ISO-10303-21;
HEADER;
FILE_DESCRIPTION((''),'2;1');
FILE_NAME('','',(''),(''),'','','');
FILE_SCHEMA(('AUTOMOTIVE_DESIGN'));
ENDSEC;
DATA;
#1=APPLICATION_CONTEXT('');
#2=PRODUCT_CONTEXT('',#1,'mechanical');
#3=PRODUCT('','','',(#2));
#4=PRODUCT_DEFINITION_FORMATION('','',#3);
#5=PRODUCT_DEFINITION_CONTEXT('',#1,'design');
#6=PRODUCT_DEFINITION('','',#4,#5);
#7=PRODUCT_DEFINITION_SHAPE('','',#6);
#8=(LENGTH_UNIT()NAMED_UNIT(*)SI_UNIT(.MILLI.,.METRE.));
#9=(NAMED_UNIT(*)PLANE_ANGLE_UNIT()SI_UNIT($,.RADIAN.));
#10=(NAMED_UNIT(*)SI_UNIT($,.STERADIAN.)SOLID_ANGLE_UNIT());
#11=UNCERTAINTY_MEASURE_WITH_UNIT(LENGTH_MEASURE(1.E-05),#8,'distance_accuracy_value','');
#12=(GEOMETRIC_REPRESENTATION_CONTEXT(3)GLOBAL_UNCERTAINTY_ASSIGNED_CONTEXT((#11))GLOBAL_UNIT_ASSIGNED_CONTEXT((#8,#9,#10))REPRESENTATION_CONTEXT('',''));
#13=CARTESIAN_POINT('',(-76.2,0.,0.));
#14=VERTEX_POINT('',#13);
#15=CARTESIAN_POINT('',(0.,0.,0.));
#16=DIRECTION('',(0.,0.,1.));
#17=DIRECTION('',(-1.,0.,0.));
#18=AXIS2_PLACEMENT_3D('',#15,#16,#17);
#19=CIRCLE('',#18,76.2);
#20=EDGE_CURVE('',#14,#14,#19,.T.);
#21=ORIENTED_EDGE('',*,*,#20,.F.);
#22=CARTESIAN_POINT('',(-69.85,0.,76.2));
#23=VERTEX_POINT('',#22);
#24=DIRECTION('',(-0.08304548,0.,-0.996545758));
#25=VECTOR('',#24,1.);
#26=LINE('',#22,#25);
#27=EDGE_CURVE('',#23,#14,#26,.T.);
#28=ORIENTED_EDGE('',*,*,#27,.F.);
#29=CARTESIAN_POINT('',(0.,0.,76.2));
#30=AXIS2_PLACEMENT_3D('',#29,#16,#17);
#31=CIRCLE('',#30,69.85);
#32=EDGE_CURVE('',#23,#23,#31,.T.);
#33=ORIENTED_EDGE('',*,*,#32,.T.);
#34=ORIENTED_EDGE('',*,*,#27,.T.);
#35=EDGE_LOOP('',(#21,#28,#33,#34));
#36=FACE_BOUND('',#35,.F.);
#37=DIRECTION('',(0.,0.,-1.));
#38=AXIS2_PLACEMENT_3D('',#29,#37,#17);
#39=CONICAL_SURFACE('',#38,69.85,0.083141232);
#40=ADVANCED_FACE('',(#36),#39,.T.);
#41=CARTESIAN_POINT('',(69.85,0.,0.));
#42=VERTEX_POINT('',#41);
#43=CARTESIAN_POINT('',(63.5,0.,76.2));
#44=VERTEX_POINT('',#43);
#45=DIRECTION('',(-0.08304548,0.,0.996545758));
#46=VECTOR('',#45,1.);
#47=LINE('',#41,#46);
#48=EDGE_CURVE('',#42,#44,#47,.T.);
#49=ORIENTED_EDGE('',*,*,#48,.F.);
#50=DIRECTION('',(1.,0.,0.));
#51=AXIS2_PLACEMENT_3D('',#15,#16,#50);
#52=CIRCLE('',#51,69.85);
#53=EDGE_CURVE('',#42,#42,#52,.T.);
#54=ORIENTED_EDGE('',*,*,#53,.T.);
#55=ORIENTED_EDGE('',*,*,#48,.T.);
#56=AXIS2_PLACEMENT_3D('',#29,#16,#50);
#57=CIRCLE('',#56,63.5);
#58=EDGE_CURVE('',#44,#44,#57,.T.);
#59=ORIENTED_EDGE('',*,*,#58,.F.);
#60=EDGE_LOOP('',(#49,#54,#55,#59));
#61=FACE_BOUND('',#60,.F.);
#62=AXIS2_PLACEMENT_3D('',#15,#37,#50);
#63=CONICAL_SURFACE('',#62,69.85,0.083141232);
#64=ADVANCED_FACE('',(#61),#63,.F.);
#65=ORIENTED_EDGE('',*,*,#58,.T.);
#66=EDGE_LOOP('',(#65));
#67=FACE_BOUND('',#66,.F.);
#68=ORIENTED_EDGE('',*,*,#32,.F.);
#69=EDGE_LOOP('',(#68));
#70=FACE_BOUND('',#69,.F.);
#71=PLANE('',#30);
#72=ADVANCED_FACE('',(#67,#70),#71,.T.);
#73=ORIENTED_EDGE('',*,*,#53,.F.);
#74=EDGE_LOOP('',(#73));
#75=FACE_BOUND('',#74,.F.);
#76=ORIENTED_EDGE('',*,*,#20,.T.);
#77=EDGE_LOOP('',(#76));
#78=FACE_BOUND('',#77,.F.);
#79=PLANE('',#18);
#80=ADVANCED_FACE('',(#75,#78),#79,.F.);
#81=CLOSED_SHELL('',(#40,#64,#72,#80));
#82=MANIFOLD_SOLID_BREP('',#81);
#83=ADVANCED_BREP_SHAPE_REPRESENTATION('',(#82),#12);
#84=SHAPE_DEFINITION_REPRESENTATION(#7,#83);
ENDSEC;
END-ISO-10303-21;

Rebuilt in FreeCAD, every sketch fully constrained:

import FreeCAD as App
import Part
import Sketcher
from FreeCAD import Vector
Q = App.Units.Quantity

doc = App.newDocument("Part")
body = doc.addObject("PartDesign::Body", "Body")

# Sketch on XZ plane
sketch1 = body.newObject("Sketcher::SketchObject", "Sketch")
sketch1.AttachmentSupport = (doc.getObject("XZ_Plane"), [""])
sketch1.MapMode = "FlatFace"
sketch1.addGeometry([
    Part.LineSegment(Vector(-76.2, 0, 0), Vector(0, 0, 0)),
    Part.LineSegment(Vector(0, 0, 0), Vector(0, 76.2, 0)),
    Part.LineSegment(Vector(0, 76.2, 0), Vector(-69.85, 76.2, 0)),
    Part.LineSegment(Vector(-69.85, 76.2, 0), Vector(-76.2, 0, 0)),
], False)
sketch1.addConstraint([
    Sketcher.Constraint("Coincident", 0, 2, 1, 1),
    Sketcher.Constraint("Coincident", 1, 2, 2, 1),
    Sketcher.Constraint("Coincident", 2, 2, 3, 1),
    Sketcher.Constraint("Coincident", 3, 2, 0, 1),
    Sketcher.Constraint("Horizontal", 0),
    Sketcher.Constraint("Vertical", 1),
    Sketcher.Constraint("Horizontal", 2),
    Sketcher.Constraint("Coincident", 0, 2, -1, 1),
    Sketcher.Constraint("Equal", 0, 1),
    Sketcher.Constraint("DistanceX", 0, 1, 0, 2, Q("3 in")),
    Sketcher.Constraint("DistanceX", 2, 2, 2, 1, Q("2.75 in")),
])
revolution = body.newObject("PartDesign::Revolution", "Revolution")
revolution.Profile = sketch1
revolution.ReferenceAxis = (sketch1, ["V_Axis"])
revolution.Angle = 360

# Sketch on XZ plane
sketch2 = body.newObject("Sketcher::SketchObject", "Sketch001")
sketch2.AttachmentSupport = (doc.getObject("XZ_Plane"), [""])
sketch2.MapMode = "FlatFace"
sketch2.addGeometry([
    Part.LineSegment(Vector(0, 76.2, 0), Vector(0, 0, 0)),
    Part.LineSegment(Vector(0, 0, 0), Vector(69.85, 0, 0)),
    Part.LineSegment(Vector(69.85, 0, 0), Vector(63.5, 76.2, 0)),
    Part.LineSegment(Vector(63.5, 76.2, 0), Vector(0, 76.2, 0)),
], False)
sketch2.addConstraint([
    Sketcher.Constraint("Coincident", 0, 2, 1, 1),
    Sketcher.Constraint("Coincident", 1, 2, 2, 1),
    Sketcher.Constraint("Coincident", 2, 2, 3, 1),
    Sketcher.Constraint("Coincident", 3, 2, 0, 1),
    Sketcher.Constraint("Vertical", 0),
    Sketcher.Constraint("Horizontal", 1),
    Sketcher.Constraint("Horizontal", 3),
    Sketcher.Constraint("Coincident", 0, 2, -1, 1),
    Sketcher.Constraint("DistanceY", 0, 2, 0, 1, Q("3 in")),
    Sketcher.Constraint("DistanceX", 3, 2, 3, 1, Q("2.5 in")),
    Sketcher.Constraint("DistanceX", 1, 1, 1, 2, Q("2.75 in")),
])
groove = body.newObject("PartDesign::Groove", "Groove")
groove.Profile = sketch2
groove.ReferenceAxis = (sketch2, ["V_Axis"])
groove.Angle = 360

doc.recompute()
